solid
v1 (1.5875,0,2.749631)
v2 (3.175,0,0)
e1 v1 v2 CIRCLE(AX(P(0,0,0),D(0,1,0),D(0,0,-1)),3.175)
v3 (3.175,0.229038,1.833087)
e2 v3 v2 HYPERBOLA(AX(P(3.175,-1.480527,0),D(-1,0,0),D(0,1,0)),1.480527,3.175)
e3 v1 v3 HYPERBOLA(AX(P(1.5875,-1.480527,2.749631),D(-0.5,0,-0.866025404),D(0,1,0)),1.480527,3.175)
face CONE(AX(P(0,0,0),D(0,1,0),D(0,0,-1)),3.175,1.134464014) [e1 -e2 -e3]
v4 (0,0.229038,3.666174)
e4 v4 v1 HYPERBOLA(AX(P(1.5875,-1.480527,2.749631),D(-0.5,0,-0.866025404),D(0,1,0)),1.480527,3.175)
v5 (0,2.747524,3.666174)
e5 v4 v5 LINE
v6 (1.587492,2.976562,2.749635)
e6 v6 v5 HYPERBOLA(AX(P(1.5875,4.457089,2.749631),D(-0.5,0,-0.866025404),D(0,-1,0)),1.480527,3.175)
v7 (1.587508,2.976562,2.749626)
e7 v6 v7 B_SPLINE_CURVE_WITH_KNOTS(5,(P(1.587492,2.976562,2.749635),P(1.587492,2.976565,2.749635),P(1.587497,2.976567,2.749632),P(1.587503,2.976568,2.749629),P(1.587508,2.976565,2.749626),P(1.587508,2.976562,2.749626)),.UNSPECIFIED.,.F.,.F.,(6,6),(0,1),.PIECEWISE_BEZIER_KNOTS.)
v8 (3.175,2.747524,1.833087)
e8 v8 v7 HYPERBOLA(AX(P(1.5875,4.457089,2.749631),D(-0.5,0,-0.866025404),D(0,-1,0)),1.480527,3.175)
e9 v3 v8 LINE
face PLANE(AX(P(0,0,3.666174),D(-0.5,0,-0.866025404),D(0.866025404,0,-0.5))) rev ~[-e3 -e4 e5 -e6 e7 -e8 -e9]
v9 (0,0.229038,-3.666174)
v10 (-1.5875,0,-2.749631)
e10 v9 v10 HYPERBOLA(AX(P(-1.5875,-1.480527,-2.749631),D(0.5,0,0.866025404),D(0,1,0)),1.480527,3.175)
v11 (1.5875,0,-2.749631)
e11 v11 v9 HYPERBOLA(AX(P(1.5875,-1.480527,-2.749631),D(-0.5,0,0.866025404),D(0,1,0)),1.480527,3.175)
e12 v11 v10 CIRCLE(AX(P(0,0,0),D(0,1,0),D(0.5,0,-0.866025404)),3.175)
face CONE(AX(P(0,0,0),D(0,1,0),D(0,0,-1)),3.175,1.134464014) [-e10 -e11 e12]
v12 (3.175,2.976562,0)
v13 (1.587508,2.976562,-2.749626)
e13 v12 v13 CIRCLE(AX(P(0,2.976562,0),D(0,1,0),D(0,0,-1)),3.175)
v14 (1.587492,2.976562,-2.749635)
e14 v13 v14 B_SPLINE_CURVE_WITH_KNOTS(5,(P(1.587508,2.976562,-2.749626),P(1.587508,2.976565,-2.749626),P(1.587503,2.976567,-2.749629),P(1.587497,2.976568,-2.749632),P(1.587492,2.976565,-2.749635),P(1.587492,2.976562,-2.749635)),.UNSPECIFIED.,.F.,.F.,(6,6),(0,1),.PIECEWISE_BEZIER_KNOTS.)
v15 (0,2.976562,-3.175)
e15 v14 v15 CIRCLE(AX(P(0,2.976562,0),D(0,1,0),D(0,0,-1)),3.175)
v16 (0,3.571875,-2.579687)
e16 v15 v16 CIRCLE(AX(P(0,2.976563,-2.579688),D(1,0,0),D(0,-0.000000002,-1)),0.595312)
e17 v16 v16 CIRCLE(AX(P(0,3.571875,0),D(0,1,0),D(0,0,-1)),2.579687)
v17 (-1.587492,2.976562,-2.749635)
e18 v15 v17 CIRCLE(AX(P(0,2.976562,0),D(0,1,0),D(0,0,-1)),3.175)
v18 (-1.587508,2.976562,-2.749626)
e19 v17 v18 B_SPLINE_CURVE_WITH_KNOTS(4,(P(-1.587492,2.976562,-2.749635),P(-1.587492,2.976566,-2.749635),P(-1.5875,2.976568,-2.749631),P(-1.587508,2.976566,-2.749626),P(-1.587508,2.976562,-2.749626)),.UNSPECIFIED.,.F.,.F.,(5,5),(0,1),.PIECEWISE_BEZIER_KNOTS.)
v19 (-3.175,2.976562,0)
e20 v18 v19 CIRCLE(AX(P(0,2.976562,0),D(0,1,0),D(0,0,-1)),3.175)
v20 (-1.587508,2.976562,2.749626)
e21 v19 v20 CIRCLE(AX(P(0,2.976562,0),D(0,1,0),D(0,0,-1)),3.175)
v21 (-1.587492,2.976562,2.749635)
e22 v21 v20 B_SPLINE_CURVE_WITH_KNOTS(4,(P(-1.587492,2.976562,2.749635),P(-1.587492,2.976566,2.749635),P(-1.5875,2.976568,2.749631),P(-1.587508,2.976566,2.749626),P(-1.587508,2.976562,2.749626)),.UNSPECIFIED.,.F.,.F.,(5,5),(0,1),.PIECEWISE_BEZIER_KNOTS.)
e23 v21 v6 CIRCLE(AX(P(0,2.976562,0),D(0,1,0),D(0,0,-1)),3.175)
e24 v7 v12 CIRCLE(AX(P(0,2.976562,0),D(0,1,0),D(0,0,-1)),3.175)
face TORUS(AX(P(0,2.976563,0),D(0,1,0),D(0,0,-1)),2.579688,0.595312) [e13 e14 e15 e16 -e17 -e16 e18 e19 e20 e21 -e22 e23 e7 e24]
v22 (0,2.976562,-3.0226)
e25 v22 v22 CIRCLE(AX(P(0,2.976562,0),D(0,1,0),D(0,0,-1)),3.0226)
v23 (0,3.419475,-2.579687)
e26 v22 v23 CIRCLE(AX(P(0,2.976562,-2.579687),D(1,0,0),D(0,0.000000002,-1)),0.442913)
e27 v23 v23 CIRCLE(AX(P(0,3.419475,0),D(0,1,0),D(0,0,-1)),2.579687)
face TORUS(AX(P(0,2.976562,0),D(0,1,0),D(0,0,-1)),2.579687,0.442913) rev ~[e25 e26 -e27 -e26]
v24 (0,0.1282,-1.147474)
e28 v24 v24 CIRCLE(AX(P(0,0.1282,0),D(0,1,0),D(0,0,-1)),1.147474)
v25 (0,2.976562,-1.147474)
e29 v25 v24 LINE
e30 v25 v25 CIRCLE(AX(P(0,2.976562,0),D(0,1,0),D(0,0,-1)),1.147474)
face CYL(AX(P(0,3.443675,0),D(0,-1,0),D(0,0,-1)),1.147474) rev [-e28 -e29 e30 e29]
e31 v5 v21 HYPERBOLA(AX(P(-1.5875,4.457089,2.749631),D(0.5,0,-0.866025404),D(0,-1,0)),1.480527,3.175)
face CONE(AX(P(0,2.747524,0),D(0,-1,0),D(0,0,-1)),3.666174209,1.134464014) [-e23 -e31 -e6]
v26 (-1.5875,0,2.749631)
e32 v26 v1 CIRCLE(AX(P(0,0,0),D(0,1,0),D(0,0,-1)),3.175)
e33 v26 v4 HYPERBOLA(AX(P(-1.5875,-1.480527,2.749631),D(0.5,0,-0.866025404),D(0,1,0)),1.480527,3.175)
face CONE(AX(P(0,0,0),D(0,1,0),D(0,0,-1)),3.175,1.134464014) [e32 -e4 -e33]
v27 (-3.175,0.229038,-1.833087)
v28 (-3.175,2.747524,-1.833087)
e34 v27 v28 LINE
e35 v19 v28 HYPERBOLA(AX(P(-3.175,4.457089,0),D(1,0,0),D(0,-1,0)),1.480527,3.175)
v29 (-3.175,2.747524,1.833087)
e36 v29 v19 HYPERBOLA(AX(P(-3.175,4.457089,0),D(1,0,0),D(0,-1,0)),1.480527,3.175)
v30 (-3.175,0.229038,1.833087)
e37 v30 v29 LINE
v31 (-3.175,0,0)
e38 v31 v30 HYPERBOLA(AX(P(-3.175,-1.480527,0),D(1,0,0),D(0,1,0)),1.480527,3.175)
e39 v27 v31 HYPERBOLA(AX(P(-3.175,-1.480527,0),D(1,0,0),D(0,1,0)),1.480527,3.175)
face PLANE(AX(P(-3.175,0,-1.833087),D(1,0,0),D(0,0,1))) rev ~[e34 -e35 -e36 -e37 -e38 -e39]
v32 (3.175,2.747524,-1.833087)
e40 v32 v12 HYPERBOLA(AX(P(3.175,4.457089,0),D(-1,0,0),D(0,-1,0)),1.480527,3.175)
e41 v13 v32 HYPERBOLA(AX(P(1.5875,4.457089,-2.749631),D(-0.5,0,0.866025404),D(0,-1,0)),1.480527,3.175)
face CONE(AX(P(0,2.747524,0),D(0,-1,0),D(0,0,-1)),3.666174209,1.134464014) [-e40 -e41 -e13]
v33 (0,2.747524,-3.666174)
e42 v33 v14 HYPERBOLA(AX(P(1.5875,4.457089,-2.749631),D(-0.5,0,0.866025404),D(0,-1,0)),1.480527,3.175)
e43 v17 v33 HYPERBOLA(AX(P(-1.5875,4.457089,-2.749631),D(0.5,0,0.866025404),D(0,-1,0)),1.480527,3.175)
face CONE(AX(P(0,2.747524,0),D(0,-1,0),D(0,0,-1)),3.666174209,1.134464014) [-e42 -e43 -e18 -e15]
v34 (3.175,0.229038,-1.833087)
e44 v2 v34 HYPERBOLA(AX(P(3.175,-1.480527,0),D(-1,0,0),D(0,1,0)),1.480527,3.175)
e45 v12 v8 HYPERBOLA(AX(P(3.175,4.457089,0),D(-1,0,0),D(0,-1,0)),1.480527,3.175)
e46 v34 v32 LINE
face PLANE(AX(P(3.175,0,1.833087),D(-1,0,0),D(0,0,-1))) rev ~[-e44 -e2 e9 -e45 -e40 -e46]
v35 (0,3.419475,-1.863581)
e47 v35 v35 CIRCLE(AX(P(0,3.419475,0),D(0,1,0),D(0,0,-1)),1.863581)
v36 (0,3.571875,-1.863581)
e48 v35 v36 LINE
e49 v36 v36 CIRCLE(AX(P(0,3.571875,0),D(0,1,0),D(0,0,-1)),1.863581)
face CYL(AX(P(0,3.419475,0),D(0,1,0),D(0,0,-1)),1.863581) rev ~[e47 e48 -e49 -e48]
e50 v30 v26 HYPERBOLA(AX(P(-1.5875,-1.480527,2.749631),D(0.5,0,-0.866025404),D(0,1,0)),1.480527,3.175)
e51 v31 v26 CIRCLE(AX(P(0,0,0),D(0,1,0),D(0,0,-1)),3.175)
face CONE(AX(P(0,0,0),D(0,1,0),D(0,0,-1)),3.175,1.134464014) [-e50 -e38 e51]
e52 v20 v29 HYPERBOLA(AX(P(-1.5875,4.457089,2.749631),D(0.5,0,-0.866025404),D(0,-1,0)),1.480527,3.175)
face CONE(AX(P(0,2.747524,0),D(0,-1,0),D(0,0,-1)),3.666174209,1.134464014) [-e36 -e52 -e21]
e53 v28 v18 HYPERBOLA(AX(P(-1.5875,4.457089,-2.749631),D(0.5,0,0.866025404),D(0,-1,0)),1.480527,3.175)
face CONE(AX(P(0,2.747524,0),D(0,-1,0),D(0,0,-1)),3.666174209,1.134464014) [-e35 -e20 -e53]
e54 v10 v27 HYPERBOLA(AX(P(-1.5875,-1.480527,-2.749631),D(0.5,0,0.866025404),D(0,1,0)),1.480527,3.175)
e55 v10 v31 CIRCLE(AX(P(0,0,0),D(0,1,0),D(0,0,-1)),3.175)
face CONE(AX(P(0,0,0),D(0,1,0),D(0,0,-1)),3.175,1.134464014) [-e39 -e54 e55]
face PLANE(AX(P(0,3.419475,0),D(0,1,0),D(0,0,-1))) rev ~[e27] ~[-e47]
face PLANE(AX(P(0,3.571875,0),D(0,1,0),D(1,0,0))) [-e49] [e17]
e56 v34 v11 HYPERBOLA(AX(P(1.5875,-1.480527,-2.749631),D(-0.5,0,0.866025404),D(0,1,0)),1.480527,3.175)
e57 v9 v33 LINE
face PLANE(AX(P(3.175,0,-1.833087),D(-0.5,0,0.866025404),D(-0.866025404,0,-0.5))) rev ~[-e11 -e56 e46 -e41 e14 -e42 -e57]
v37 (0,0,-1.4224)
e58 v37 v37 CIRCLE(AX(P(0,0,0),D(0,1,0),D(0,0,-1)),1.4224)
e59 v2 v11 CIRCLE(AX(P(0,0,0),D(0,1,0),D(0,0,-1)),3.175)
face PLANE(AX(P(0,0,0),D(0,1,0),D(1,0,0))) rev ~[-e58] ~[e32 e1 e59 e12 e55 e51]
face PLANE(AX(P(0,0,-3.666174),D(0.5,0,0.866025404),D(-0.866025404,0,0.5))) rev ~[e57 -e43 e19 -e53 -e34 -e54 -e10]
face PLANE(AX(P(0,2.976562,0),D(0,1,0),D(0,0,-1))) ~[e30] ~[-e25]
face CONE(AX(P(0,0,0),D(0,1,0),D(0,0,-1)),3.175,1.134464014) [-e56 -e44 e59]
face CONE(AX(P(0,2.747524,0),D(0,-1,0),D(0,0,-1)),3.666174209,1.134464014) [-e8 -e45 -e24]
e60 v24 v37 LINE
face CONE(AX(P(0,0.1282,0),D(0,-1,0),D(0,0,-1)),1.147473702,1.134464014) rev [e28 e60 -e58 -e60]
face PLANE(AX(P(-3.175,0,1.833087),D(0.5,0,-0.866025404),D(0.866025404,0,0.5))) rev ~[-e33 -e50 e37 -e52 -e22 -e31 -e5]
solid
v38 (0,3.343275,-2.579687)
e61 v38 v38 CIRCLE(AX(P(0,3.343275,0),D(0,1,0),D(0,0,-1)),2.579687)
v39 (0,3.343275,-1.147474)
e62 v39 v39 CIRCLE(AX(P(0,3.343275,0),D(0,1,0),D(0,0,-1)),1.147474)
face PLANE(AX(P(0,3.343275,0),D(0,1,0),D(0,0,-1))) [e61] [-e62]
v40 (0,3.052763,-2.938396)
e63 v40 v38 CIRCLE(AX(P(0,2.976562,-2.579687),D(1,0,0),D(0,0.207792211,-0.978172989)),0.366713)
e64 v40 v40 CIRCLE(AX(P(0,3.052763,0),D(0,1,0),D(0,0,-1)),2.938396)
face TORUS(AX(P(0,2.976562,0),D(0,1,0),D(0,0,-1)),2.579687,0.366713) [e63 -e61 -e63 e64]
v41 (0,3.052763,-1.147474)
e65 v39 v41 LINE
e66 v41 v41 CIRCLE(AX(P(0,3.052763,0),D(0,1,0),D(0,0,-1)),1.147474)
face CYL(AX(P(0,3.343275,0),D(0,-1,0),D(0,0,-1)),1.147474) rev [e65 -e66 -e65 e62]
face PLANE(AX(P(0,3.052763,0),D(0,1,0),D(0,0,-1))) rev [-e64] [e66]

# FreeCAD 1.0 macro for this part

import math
import FreeCAD as App
import Part
import Sketcher
Q = App.Units.Quantity

doc = App.newDocument("Part")
body = doc.addObject("PartDesign::Body", "Body")

sketch1 = body.newObject("Sketcher::SketchObject", "Sketch")
sketch1.AttachmentSupport = (doc.getObject("XZ_Plane"), [""])
sketch1.MapMode = "FlatFace"
sketch1.addGeometry([
    Part.LineSegment(App.Vector(0, -3.666174, 0), App.Vector(-3.175, -1.833087, 0)),
    Part.LineSegment(App.Vector(-3.175, -1.833087, 0), App.Vector(-3.175, 1.833087, 0)),
    Part.LineSegment(App.Vector(-3.175, 1.833087, 0), App.Vector(0, 3.666174, 0)),
    Part.LineSegment(App.Vector(0, 3.666174, 0), App.Vector(3.175, 1.833087, 0)),
    Part.LineSegment(App.Vector(3.175, 1.833087, 0), App.Vector(3.175, -1.833087, 0)),
    Part.LineSegment(App.Vector(3.175, -1.833087, 0), App.Vector(0, -3.666174, 0)),
], False)
sketch1.addConstraint([
    Sketcher.Constraint("Coincident", 0, 2, 1, 1),
    Sketcher.Constraint("Coincident", 1, 2, 2, 1),
    Sketcher.Constraint("Coincident", 2, 2, 3, 1),
    Sketcher.Constraint("Coincident", 3, 2, 4, 1),
    Sketcher.Constraint("Coincident", 4, 2, 5, 1),
    Sketcher.Constraint("Coincident", 5, 2, 0, 1),
    Sketcher.Constraint("Vertical", 1),
    Sketcher.Constraint("Vertical", 4),
    Sketcher.Constraint("Symmetric", 0, 2, 3, 2, -1, 1),
    Sketcher.Constraint("Symmetric", 2, 2, 5, 2, -1, 1),
    Sketcher.Constraint("PointOnObject", 2, 2, -2),
    Sketcher.Constraint("Parallel", 2, 5),
    Sketcher.Constraint("Horizontal", 1, 2, 3, 2),
    Sketcher.Constraint("Angle", 0, Q("150 deg")),
    Sketcher.Constraint("DistanceX", 1, 2, 3, 2, Q("0.25 in")),
    Sketcher.Constraint("DistanceY", 1, 1, 1, 2, Q("3.666174 mm")),
])
pad1 = body.newObject("PartDesign::Pad", "Pad")
pad1.Profile = sketch1
pad1.Length = Q("0.140625 in")
pad1.Reversed = True

sketch2 = body.newObject("Sketcher::SketchObject", "Sketch001")
sketch2.AttachmentSupport = (doc.getObject("YZ_Plane"), [""])
sketch2.MapMode = "FlatFace"
sketch2.addGeometry([
    Part.LineSegment(App.Vector(3.571875, -1.4224, 0), App.Vector(3.571875, 0, 0)),
    Part.LineSegment(App.Vector(3.571875, 0, 0), App.Vector(0, 0, 0)),
    Part.LineSegment(App.Vector(0, 0, 0), App.Vector(0, -1.4224, 0)),
    Part.LineSegment(App.Vector(0, -1.4224, 0), App.Vector(0.1282, -1.147474, 0)),
    Part.LineSegment(App.Vector(0.1282, -1.147474, 0), App.Vector(3.443675, -1.147474, 0)),
    Part.LineSegment(App.Vector(3.443675, -1.147474, 0), App.Vector(3.571875, -1.4224, 0)),
], False)
sketch2.addConstraint([
    Sketcher.Constraint("Coincident", 0, 2, 1, 1),
    Sketcher.Constraint("Coincident", 1, 2, 2, 1),
    Sketcher.Constraint("Coincident", 2, 2, 3, 1),
    Sketcher.Constraint("Coincident", 3, 2, 4, 1),
    Sketcher.Constraint("Coincident", 4, 2, 5, 1),
    Sketcher.Constraint("Coincident", 5, 2, 0, 1),
    Sketcher.Constraint("Vertical", 0),
    Sketcher.Constraint("Horizontal", 1),
    Sketcher.Constraint("Vertical", 2),
    Sketcher.Constraint("Horizontal", 4),
    Sketcher.Constraint("Coincident", 1, 2, -1, 1),
    Sketcher.Constraint("Horizontal", 2, 2, 5, 2),
    Sketcher.Constraint("Equal", 3, 5),
    Sketcher.Constraint("Angle", 3, Q("65 deg")),
    Sketcher.Constraint("DistanceX", 1, 2, 1, 1, Q("0.140625 in")),
    Sketcher.Constraint("DistanceY", 0, 1, 0, 2, Q("0.056 in")),
    Sketcher.Constraint("DistanceX", -1, 1, 3, 2, Q("0.1282 mm")),
])
groove = body.newObject("PartDesign::Groove", "Groove")
groove.Profile = sketch2
groove.ReferenceAxis = (sketch2, ["H_Axis"])
groove.Angle = 360

sketch3 = body.newObject("Sketcher::SketchObject", "Sketch002")
sketch3.AttachmentSupport = (doc.getObject("YZ_Plane"), [""])
sketch3.MapMode = "FlatFace"
sketch3.addGeometry([
    Part.LineSegment(App.Vector(0, -3.175, 0), App.Vector(0, 0, 0)),
    Part.LineSegment(App.Vector(0, 0, 0), App.Vector(-1.27, 0, 0)),
    Part.LineSegment(App.Vector(-1.27, 0, 0), App.Vector(-1.27, -4.936174, 0)),
    Part.LineSegment(App.Vector(-1.27, -4.936174, 0), App.Vector(4.841875, -4.936174, 0)),
    Part.LineSegment(App.Vector(4.841875, -4.936174, 0), App.Vector(4.841875, -2.579687, 0)),
    Part.LineSegment(App.Vector(4.841875, -2.579687, 0), App.Vector(3.571875, -2.579687, 0)),
    Part.ArcOfCircle(Part.Circle(App.Vector(2.976563, -2.579688, 0), App.Vector(0, 0, 1), 0.595312), math.radians(-90), math.radians(0)),
    Part.LineSegment(App.Vector(2.976562, -3.175, 0), App.Vector(2.747524, -3.666174, 0)),
    Part.LineSegment(App.Vector(2.747524, -3.666174, 0), App.Vector(0.229038, -3.666174, 0)),
    Part.LineSegment(App.Vector(0.229038, -3.666174, 0), App.Vector(0, -3.175, 0)),
], False)
sketch3.addConstraint([
    Sketcher.Constraint("Coincident", 0, 2, 1, 1),
    Sketcher.Constraint("Coincident", 1, 2, 2, 1),
    Sketcher.Constraint("Coincident", 2, 2, 3, 1),
    Sketcher.Constraint("Coincident", 3, 2, 4, 1),
    Sketcher.Constraint("Coincident", 4, 2, 5, 1),
    Sketcher.Constraint("Coincident", 5, 2, 6, 2),
    Sketcher.Constraint("Coincident", 6, 1, 7, 1),
    Sketcher.Constraint("Coincident", 7, 2, 8, 1),
    Sketcher.Constraint("Coincident", 8, 2, 9, 1),
    Sketcher.Constraint("Coincident", 9, 2, 0, 1),
    Sketcher.Constraint("Vertical", 0),
    Sketcher.Constraint("Horizontal", 1),
    Sketcher.Constraint("Vertical", 2),
    Sketcher.Constraint("Horizontal", 3),
    Sketcher.Constraint("Vertical", 4),
    Sketcher.Constraint("Horizontal", 5),
    Sketcher.Constraint("Horizontal", 8),
    Sketcher.Constraint("Coincident", 0, 2, -1, 1),
    Sketcher.Constraint("Horizontal", 6, 3, 4, 2),
    Sketcher.Constraint("Horizontal", 6, 1, 9, 2),
    Sketcher.Constraint("Equal", 1, 5),
    Sketcher.Constraint("Equal", 7, 9),
    Sketcher.Constraint("Angle", 7, Q("-115 deg")),
    Sketcher.Constraint("DistanceX", 1, 2, 1, 1, Q("0.05 in")),
    Sketcher.Constraint("DistanceY", 0, 1, 0, 2, Q("0.125 in")),
    Sketcher.Constraint("DistanceY", 3, 2, 7, 2, Q("0.05 in")),
    Sketcher.Constraint("DistanceX", -1, 1, 5, 2, Q("0.140625 in")),
    Sketcher.Constraint("Radius", 6, Q("0.595312 mm")),
    Sketcher.Constraint("Distance", 7, Q("0.541951 mm")),
    Sketcher.Constraint("DistanceX", 8, 2, 8, 1, Q("2.518486 mm")),
])
groove2 = body.newObject("PartDesign::Groove", "Groove001")
groove2.Profile = sketch3
groove2.ReferenceAxis = (sketch3, ["H_Axis"])
groove2.Angle = 360

sketch4 = body.newObject("Sketcher::SketchObject", "Sketch003")
sketch4.AttachmentSupport = (doc.getObject("YZ_Plane"), [""])
sketch4.MapMode = "FlatFace"
sketch4.addGeometry([
    Part.LineSegment(App.Vector(2.976562, -1.147474, 0), App.Vector(2.976562, -3.0226, 0)),
    Part.ArcOfCircle(Part.Circle(App.Vector(2.976562, -2.579687, 0), App.Vector(0, 0, 1), 0.442913), math.radians(-90), math.radians(0)),
    Part.LineSegment(App.Vector(3.419475, -2.579687, 0), App.Vector(3.419475, -1.863581, 0)),
    Part.LineSegment(App.Vector(3.419475, -1.863581, 0), App.Vector(4.841875, -1.863581, 0)),
    Part.LineSegment(App.Vector(4.841875, -1.863581, 0), App.Vector(4.841875, -1.147474, 0)),
    Part.LineSegment(App.Vector(4.841875, -1.147474, 0), App.Vector(2.976562, -1.147474, 0)),
], False)
sketch4.addConstraint([
    Sketcher.Constraint("Coincident", 0, 2, 1, 1),
    Sketcher.Constraint("Tangent", 1, 2, 2, 1),
    Sketcher.Constraint("Coincident", 2, 2, 3, 1),
    Sketcher.Constraint("Coincident", 3, 2, 4, 1),
    Sketcher.Constraint("Coincident", 4, 2, 5, 1),
    Sketcher.Constraint("Coincident", 5, 2, 0, 1),
    Sketcher.Constraint("Vertical", 0),
    Sketcher.Constraint("Vertical", 2),
    Sketcher.Constraint("Horizontal", 3),
    Sketcher.Constraint("Vertical", 4),
    Sketcher.Constraint("Horizontal", 5),
    Sketcher.Constraint("Vertical", 1, 3, 0, 2),
    Sketcher.Constraint("Equal", 2, 4),
    Sketcher.Constraint("DistanceX", 3, 1, 3, 2, Q("0.056 in")),
    Sketcher.Constraint("DistanceY", 0, 2, -1, 1, Q("0.119 in")),
    Sketcher.Constraint("Radius", 1, Q("0.442913 mm")),
    Sketcher.Constraint("DistanceY", 0, 2, 0, 1, Q("1.875126 mm")),
    Sketcher.Constraint("DistanceX", -1, 1, 1, 3, Q("2.976562 mm")),
])
groove3 = body.newObject("PartDesign::Groove", "Groove002")
groove3.Profile = sketch4
groove3.ReferenceAxis = (sketch4, ["H_Axis"])
groove3.Angle = 360
body2 = doc.addObject("PartDesign::Body", "Body001")

sketch5 = body2.newObject("Sketcher::SketchObject", "Sketch004")
sketch5.AttachmentSupport = (doc.getObject("YZ_Plane001"), [""])
sketch5.MapMode = "FlatFace"
sketch5.addGeometry([
    Part.LineSegment(App.Vector(3.052763, -1.147474, 0), App.Vector(3.052763, -2.938396, 0)),
    Part.ArcOfCircle(Part.Circle(App.Vector(2.976562, -2.579687, 0), App.Vector(0, 0, 1), 0.366713), math.radians(-78.006999), math.radians(0)),
    Part.LineSegment(App.Vector(3.343275, -2.579687, 0), App.Vector(3.343275, -1.147474, 0)),
    Part.LineSegment(App.Vector(3.343275, -1.147474, 0), App.Vector(3.052763, -1.147474, 0)),
], False)
sketch5.addConstraint([
    Sketcher.Constraint("Coincident", 0, 2, 1, 1),
    Sketcher.Constraint("Tangent", 1, 2, 2, 1),
    Sketcher.Constraint("Coincident", 2, 2, 3, 1),
    Sketcher.Constraint("Coincident", 3, 2, 0, 1),
    Sketcher.Constraint("Vertical", 0),
    Sketcher.Constraint("Vertical", 2),
    Sketcher.Constraint("Horizontal", 3),
    Sketcher.Constraint("DistanceX", 1, 3, 0, 2, Q("0.003 in")),
    Sketcher.Constraint("Radius", 1, Q("0.366713 mm")),
    Sketcher.Constraint("DistanceY", 0, 2, 0, 1, Q("1.790922 mm")),
    Sketcher.Constraint("DistanceX", -1, 1, 1, 3, Q("2.976562 mm")),
    Sketcher.Constraint("DistanceY", 1, 3, -1, 1, Q("2.579687 mm")),
])
revolution = body2.newObject("PartDesign::Revolution", "Revolution")
revolution.Profile = sketch5
revolution.ReferenceAxis = (sketch5, ["H_Axis"])
revolution.Angle = 360

doc.recompute()
